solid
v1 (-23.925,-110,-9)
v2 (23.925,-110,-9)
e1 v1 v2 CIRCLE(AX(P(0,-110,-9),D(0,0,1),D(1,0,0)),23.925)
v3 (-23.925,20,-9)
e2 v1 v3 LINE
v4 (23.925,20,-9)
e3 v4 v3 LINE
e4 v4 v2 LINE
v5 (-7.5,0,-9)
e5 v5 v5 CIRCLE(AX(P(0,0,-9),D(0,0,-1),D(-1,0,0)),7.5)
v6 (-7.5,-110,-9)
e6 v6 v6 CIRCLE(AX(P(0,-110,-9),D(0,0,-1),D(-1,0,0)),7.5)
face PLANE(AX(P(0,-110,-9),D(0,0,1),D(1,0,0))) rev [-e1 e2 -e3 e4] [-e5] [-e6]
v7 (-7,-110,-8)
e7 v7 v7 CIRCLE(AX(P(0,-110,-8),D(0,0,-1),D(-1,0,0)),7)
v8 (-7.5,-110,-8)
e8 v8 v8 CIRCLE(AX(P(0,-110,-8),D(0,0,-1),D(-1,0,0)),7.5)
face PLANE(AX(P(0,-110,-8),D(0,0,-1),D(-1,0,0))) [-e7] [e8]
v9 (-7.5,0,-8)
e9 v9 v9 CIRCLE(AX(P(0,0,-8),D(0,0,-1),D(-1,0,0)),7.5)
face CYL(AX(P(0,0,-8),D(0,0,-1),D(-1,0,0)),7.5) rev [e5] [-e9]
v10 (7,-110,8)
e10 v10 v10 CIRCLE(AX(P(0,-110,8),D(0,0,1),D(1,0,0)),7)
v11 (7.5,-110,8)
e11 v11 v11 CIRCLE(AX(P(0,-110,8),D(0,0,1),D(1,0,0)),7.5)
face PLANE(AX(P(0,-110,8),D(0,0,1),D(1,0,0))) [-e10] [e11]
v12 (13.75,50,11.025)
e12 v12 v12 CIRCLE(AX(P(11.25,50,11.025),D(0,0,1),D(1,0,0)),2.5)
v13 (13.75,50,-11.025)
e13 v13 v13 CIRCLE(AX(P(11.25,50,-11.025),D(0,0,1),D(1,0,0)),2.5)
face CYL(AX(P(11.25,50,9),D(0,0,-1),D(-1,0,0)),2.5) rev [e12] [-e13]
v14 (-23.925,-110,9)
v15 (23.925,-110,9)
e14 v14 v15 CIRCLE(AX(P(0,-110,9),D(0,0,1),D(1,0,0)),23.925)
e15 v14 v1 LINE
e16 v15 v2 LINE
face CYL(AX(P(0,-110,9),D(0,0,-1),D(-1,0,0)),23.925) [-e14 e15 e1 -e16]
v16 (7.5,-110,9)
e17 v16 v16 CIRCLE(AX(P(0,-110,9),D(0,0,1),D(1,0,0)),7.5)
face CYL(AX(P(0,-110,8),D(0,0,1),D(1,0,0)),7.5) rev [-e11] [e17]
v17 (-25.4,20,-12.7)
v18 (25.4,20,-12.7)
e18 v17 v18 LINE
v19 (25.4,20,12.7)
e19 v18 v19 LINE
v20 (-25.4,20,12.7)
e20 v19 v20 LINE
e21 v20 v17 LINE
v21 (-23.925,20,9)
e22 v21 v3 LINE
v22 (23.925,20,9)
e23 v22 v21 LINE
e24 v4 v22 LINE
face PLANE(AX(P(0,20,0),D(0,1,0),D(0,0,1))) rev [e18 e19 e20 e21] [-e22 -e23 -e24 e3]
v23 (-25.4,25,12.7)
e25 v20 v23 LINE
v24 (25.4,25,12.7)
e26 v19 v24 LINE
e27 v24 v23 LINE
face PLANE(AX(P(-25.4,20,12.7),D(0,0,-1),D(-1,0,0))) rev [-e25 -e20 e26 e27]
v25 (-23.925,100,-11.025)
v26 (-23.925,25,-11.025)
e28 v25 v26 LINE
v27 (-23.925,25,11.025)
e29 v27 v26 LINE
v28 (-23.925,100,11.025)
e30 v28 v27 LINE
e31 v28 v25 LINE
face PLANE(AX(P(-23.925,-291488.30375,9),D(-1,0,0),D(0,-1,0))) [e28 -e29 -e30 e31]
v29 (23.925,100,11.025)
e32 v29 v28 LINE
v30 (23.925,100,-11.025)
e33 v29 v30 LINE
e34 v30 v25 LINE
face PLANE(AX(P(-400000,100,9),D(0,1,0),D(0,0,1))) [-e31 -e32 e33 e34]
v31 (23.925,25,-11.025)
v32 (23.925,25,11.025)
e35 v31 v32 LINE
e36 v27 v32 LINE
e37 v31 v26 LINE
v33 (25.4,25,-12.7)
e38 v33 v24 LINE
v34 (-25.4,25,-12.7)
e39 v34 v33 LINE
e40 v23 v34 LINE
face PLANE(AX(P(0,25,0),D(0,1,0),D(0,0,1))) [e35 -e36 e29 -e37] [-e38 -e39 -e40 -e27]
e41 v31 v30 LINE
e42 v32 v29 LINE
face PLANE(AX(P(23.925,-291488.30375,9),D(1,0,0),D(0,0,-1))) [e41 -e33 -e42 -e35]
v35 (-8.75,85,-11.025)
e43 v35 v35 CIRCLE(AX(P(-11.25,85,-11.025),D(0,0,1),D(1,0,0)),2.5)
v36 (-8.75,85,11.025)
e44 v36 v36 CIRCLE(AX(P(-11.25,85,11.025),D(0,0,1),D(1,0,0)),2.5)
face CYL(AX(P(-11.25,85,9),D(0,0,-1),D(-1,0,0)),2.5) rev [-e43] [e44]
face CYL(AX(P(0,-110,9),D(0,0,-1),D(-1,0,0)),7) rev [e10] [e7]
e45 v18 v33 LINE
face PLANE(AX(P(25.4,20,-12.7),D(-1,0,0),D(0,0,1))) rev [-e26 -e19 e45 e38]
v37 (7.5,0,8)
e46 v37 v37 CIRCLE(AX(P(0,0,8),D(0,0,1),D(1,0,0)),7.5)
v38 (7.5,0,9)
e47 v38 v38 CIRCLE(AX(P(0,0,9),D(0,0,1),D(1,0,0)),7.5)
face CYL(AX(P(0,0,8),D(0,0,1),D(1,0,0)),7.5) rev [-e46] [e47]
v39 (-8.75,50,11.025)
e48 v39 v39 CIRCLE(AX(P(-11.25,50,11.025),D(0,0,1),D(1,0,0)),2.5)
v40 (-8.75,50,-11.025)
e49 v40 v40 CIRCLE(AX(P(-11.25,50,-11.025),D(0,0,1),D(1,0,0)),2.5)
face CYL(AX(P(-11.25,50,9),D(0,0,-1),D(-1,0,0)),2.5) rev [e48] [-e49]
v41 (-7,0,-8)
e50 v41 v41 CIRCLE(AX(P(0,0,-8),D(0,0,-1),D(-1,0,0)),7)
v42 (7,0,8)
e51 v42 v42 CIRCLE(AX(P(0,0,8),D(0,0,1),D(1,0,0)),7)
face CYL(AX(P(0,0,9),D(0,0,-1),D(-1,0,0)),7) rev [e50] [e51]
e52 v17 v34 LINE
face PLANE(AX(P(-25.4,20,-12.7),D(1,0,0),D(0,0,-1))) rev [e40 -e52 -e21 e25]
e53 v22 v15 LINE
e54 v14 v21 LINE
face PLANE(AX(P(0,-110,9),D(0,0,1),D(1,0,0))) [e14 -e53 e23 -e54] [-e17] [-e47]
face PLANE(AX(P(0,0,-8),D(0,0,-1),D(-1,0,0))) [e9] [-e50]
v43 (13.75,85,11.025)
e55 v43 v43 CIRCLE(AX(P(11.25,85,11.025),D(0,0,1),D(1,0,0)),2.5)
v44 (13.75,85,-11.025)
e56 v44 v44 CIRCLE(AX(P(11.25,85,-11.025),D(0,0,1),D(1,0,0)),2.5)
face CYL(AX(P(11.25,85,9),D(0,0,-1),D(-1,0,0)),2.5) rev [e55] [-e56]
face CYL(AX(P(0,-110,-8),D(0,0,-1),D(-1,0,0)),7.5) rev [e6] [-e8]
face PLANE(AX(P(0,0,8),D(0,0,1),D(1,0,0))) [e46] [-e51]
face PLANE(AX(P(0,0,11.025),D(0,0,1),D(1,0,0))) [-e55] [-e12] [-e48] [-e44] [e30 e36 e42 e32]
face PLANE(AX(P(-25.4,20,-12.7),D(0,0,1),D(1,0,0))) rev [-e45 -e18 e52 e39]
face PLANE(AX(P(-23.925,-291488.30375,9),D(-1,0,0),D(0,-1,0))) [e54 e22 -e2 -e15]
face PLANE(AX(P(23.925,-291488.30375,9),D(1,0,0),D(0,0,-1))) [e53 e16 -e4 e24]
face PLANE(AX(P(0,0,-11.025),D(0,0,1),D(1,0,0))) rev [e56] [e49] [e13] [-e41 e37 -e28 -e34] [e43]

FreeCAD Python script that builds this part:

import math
import FreeCAD as App
import Part
import Sketcher

V = App.Vector
Q = App.Units.Quantity

doc = App.newDocument("Part")
body = doc.addObject("PartDesign::Body", "Body")

# Sketch on XY plane
sketch1 = body.newObject("Sketcher::SketchObject", "Sketch")
sketch1.AttachmentSupport = (doc.getObject("XY_Plane"), [""])
sketch1.MapMode = "FlatFace"
sketch1.addGeometry(Part.LineSegment(V(23.9, 100, 0), V(-23.9, 100, 0)), False)
sketch1.addGeometry(Part.LineSegment(V(-23.9, 100, 0), V(-23.9, -110, 0)), False)
sketch1.addGeometry(Part.ArcOfCircle(Part.Circle(V(0, -110, 0), V(0, 0, 1), 23.9), math.radians(180), math.radians(270)), False)
sketch1.addGeometry(Part.ArcOfCircle(Part.Circle(V(0, -110, 0), V(0, 0, 1), 23.9), math.radians(-90), math.radians(0)), False)
sketch1.addGeometry(Part.LineSegment(V(23.9, -110, 0), V(23.9, 100, 0)), False)
sketch1.addGeometry(Part.Circle(V(0, -110, 0), V(0, 0, 1), 7), False)
sketch1.addGeometry(Part.Circle(V(11.2, 50, 0), V(0, 0, 1), 2.5), False)
sketch1.addGeometry(Part.Circle(V(11.2, 85, 0), V(0, 0, 1), 2.5), False)
sketch1.addGeometry(Part.Circle(V(0, 0, 0), V(0, 0, 1), 7), False)
sketch1.addGeometry(Part.Circle(V(-11.2, 50, 0), V(0, 0, 1), 2.5), False)
sketch1.addGeometry(Part.Circle(V(-11.2, 85, 0), V(0, 0, 1), 2.5), False)
sketch1.addConstraint(Sketcher.Constraint("Coincident", 0, 2, 1, 1))
sketch1.addConstraint(Sketcher.Constraint("Tangent", 1, 2, 2, 1))
sketch1.addConstraint(Sketcher.Constraint("Tangent", 2, 2, 3, 1))
sketch1.addConstraint(Sketcher.Constraint("Tangent", 3, 2, 4, 1))
sketch1.addConstraint(Sketcher.Constraint("Coincident", 4, 2, 0, 1))
sketch1.addConstraint(Sketcher.Constraint("Horizontal", 0))
sketch1.addConstraint(Sketcher.Constraint("Vertical", 1))
sketch1.addConstraint(Sketcher.Constraint("Vertical", 4))
sketch1.addConstraint(Sketcher.Constraint("Coincident", 8, 3, -1, 1))
sketch1.addConstraint(Sketcher.Constraint("Coincident", 5, 3, 2, 3))
sketch1.addConstraint(Sketcher.Constraint("Equal", 2, 3))
sketch1.addConstraint(Sketcher.Constraint("Equal", 6, 7))
sketch1.addConstraint(Sketcher.Constraint("Equal", 5, 8))
sketch1.addConstraint(Sketcher.Constraint("Equal", 7, 9))
sketch1.addConstraint(Sketcher.Constraint("Equal", 9, 10))
sketch1.addConstraint(Sketcher.Constraint("Symmetric", 6, 3, 9, 3, -2))
sketch1.addConstraint(Sketcher.Constraint("Symmetric", 7, 3, 10, 3, -2))
sketch1.addConstraint(Sketcher.Constraint("PointOnObject", 2, 3, -2))
sketch1.addConstraint(Sketcher.Constraint("PointOnObject", 2, 2, -2))
sketch1.addConstraint(Sketcher.Constraint("Vertical", 6, 3, 7, 3))
sketch1.addConstraint(Sketcher.Constraint("Diameter", 5, Q("14 mm")))
sketch1.addConstraint(Sketcher.Constraint("Diameter", 6, Q("5 mm")))
sketch1.addConstraint(Sketcher.Constraint("DistanceY", 1, 2, 1, 1, Q("210 mm")))
sketch1.addConstraint(Sketcher.Constraint("DistanceY", 2, 3, -1, 1, Q("110 mm")))
sketch1.addConstraint(Sketcher.Constraint("DistanceY", -1, 1, 6, 3, Q("50 mm")))
sketch1.addConstraint(Sketcher.Constraint("DistanceY", -1, 1, 7, 3, Q("85 mm")))
sketch1.addConstraint(Sketcher.Constraint("Radius", 2, Q("23.925 mm")))
sketch1.addConstraint(Sketcher.Constraint("DistanceX", 9, 3, 6, 3, Q("22.5 mm")))
pad1 = body.newObject("PartDesign::Pad", "Pad")
pad1.Profile = sketch1
pad1.Length = 18
pad1.Midplane = True

# Sketch on XY plane
sketch2 = body.newObject("Sketcher::SketchObject", "Sketch001")
sketch2.AttachmentSupport = (doc.getObject("XY_Plane"), [""])
sketch2.MapMode = "FlatFace"
sketch2.addGeometry(Part.LineSegment(V(-23.9, 100, 0), V(-23.9, 35, 0)), False)
sketch2.addGeometry(Part.LineSegment(V(-23.9, 35, 0), V(23.9, 35, 0)), False)
sketch2.addGeometry(Part.LineSegment(V(23.9, 35, 0), V(23.9, 100, 0)), False)
sketch2.addGeometry(Part.LineSegment(V(23.9, 100, 0), V(-23.9, 100, 0)), False)
sketch2.addGeometry(Part.Circle(V(-11.2, 50, 0), V(0, 0, 1), 2.5), False)
sketch2.addGeometry(Part.Circle(V(11.2, 50, 0), V(0, 0, 1), 2.5), False)
sketch2.addGeometry(Part.Circle(V(-11.2, 85, 0), V(0, 0, 1), 2.5), False)
sketch2.addGeometry(Part.Circle(V(11.2, 85, 0), V(0, 0, 1), 2.5), False)
sketch2.addConstraint(Sketcher.Constraint("Coincident", 0, 2, 1, 1))
sketch2.addConstraint(Sketcher.Constraint("Coincident", 1, 2, 2, 1))
sketch2.addConstraint(Sketcher.Constraint("Coincident", 2, 2, 3, 1))
sketch2.addConstraint(Sketcher.Constraint("Coincident", 3, 2, 0, 1))
sketch2.addConstraint(Sketcher.Constraint("Vertical", 0))
sketch2.addConstraint(Sketcher.Constraint("Horizontal", 1))
sketch2.addConstraint(Sketcher.Constraint("Vertical", 2))
sketch2.addConstraint(Sketcher.Constraint("Horizontal", 3))
sketch2.addConstraint(Sketcher.Constraint("Equal", 4, 5))
sketch2.addConstraint(Sketcher.Constraint("Equal", 5, 6))
sketch2.addConstraint(Sketcher.Constraint("Equal", 6, 7))
sketch2.addConstraint(Sketcher.Constraint("Symmetric", 4, 3, 5, 3, -2))
sketch2.addConstraint(Sketcher.Constraint("Symmetric", 6, 3, 7, 3, -2))
sketch2.addConstraint(Sketcher.Constraint("Vertical", 4, 3, 6, 3))
sketch2.addConstraint(Sketcher.Constraint("Diameter", 4, Q("5 mm")))
sketch2.addConstraint(Sketcher.Constraint("DistanceY", 0, 2, 0, 1, Q("65 mm")))
sketch2.addConstraint(Sketcher.Constraint("DistanceY", -1, 1, 4, 3, Q("50 mm")))
sketch2.addConstraint(Sketcher.Constraint("DistanceY", -1, 1, 6, 3, Q("85 mm")))
sketch2.addConstraint(Sketcher.Constraint("DistanceY", -1, 1, 0, 2, Q("35 mm")))
sketch2.addConstraint(Sketcher.Constraint("DistanceX", 1, 1, 1, 2, Q("47.85 mm")))
sketch2.addConstraint(Sketcher.Constraint("DistanceX", 4, 3, 5, 3, Q("22.5 mm")))
sketch2.addConstraint(Sketcher.Constraint("DistanceX", 0, 2, -1, 1, Q("23.925 mm")))
pad2 = body.newObject("PartDesign::Pad", "Pad001")
pad2.Profile = sketch2
pad2.Length = 22.05
pad2.Midplane = True

# Sketch on XY plane
sketch3 = body.newObject("Sketcher::SketchObject", "Sketch002")
sketch3.AttachmentSupport = (doc.getObject("XY_Plane"), [""])
sketch3.MapMode = "FlatFace"
sketch3.AttachmentOffset = App.Placement(V(0, 0, 9), App.Rotation())
sketch3.addGeometry(Part.Circle(V(0, -110, 0), V(0, 0, 1), 8), False)
sketch3.addConstraint(Sketcher.Constraint("PointOnObject", 0, 3, -2))
sketch3.addConstraint(Sketcher.Constraint("Diameter", 0, Q("15 mm")))
sketch3.addConstraint(Sketcher.Constraint("DistanceY", 0, 3, -1, 1, Q("110 mm")))
pocket1 = body.newObject("PartDesign::Pocket", "Pocket")
pocket1.Profile = sketch3
pocket1.Length = 1

# Sketch on XY plane
sketch4 = body.newObject("Sketcher::SketchObject", "Sketch003")
sketch4.AttachmentSupport = (doc.getObject("XY_Plane"), [""])
sketch4.MapMode = "FlatFace"
sketch4.AttachmentOffset = App.Placement(V(0, 0, -8), App.Rotation())
sketch4.addGeometry(Part.Circle(V(0, -110, 0), V(0, 0, 1), 8), False)
sketch4.addConstraint(Sketcher.Constraint("PointOnObject", 0, 3, -2))
sketch4.addConstraint(Sketcher.Constraint("Diameter", 0, Q("15 mm")))
sketch4.addConstraint(Sketcher.Constraint("DistanceY", 0, 3, -1, 1, Q("110 mm")))
pocket2 = body.newObject("PartDesign::Pocket", "Pocket001")
pocket2.Profile = sketch4
pocket2.Length = 1

# Sketch on XY plane
sketch5 = body.newObject("Sketcher::SketchObject", "Sketch004")
sketch5.AttachmentSupport = (doc.getObject("XY_Plane"), [""])
sketch5.MapMode = "FlatFace"
sketch5.AttachmentOffset = App.Placement(V(0, 0, 9), App.Rotation())
sketch5.addGeometry(Part.Circle(V(0, 0, 0), V(0, 0, 1), 8), False)
sketch5.addConstraint(Sketcher.Constraint("Coincident", 0, 3, -1, 1))
sketch5.addConstraint(Sketcher.Constraint("Diameter", 0, Q("15 mm")))
pocket3 = body.newObject("PartDesign::Pocket", "Pocket002")
pocket3.Profile = sketch5
pocket3.Length = 1

# Sketch on XY plane
sketch6 = body.newObject("Sketcher::SketchObject", "Sketch005")
sketch6.AttachmentSupport = (doc.getObject("XY_Plane"), [""])
sketch6.MapMode = "FlatFace"
sketch6.AttachmentOffset = App.Placement(V(0, 0, -8), App.Rotation())
sketch6.addGeometry(Part.Circle(V(0, 0, 0), V(0, 0, 1), 8), False)
sketch6.addConstraint(Sketcher.Constraint("Coincident", 0, 3, -1, 1))
sketch6.addConstraint(Sketcher.Constraint("Diameter", 0, Q("15 mm")))
pocket4 = body.newObject("PartDesign::Pocket", "Pocket003")
pocket4.Profile = sketch6
pocket4.Length = 1

# Sketch on XZ plane
sketch7 = body.newObject("Sketcher::SketchObject", "Sketch006")
sketch7.AttachmentSupport = (doc.getObject("XZ_Plane"), [""])
sketch7.MapMode = "FlatFace"
sketch7.AttachmentOffset = App.Placement(V(0, 0, -25), App.Rotation())
sketch7.addGeometry(Part.LineSegment(V(-25, 13, 0), V(-25, -13, 0)), False)
sketch7.addGeometry(Part.LineSegment(V(-25, -13, 0), V(25, -13, 0)), False)
sketch7.addGeometry(Part.LineSegment(V(25, -13, 0), V(25, 13, 0)), False)
sketch7.addGeometry(Part.LineSegment(V(25, 13, 0), V(-25, 13, 0)), False)
sketch7.addConstraint(Sketcher.Constraint("Coincident", 0, 2, 1, 1))
sketch7.addConstraint(Sketcher.Constraint("Coincident", 1, 2, 2, 1))
sketch7.addConstraint(Sketcher.Constraint("Coincident", 2, 2, 3, 1))
sketch7.addConstraint(Sketcher.Constraint("Coincident", 3, 2, 0, 1))
sketch7.addConstraint(Sketcher.Constraint("Vertical", 0))
sketch7.addConstraint(Sketcher.Constraint("Horizontal", 1))
sketch7.addConstraint(Sketcher.Constraint("Vertical", 2))
sketch7.addConstraint(Sketcher.Constraint("Horizontal", 3))
sketch7.addConstraint(Sketcher.Constraint("Symmetric", 0, 2, 2, 2, -1, 1))
sketch7.addConstraint(Sketcher.Constraint("DistanceX", 1, 1, 1, 2, Q("50.8 mm")))
sketch7.addConstraint(Sketcher.Constraint("DistanceY", 0, 2, 0, 1, Q("25.4 mm")))
pad3 = body.newObject("PartDesign::Pad", "Pad002")
pad3.Profile = sketch7
pad3.Length = 5

# Sketch on XZ plane
sketch8 = body.newObject("Sketcher::SketchObject", "Sketch007")
sketch8.AttachmentSupport = (doc.getObject("XZ_Plane"), [""])
sketch8.MapMode = "FlatFace"
sketch8.AttachmentOffset = App.Placement(V(0, 0, -35), App.Rotation())
sketch8.addGeometry(Part.LineSegment(V(-24, 11, 0), V(-24, -11, 0)), False)
sketch8.addGeometry(Part.LineSegment(V(-24, -11, 0), V(24, -11, 0)), False)
sketch8.addGeometry(Part.LineSegment(V(24, -11, 0), V(24, 11, 0)), False)
sketch8.addGeometry(Part.LineSegment(V(24, 11, 0), V(-24, 11, 0)), False)
sketch8.addConstraint(Sketcher.Constraint("Coincident", 0, 2, 1, 1))
sketch8.addConstraint(Sketcher.Constraint("Coincident", 1, 2, 2, 1))
sketch8.addConstraint(Sketcher.Constraint("Coincident", 2, 2, 3, 1))
sketch8.addConstraint(Sketcher.Constraint("Coincident", 3, 2, 0, 1))
sketch8.addConstraint(Sketcher.Constraint("Vertical", 0))
sketch8.addConstraint(Sketcher.Constraint("Horizontal", 1))
sketch8.addConstraint(Sketcher.Constraint("Vertical", 2))
sketch8.addConstraint(Sketcher.Constraint("Horizontal", 3))
sketch8.addConstraint(Sketcher.Constraint("Symmetric", 0, 2, 2, 2, -1, 1))
sketch8.addConstraint(Sketcher.Constraint("DistanceX", 1, 1, 1, 2, Q("47.85 mm")))
sketch8.addConstraint(Sketcher.Constraint("DistanceY", 0, 2, 0, 1, Q("22.05 mm")))
pad4 = body.newObject("PartDesign::Pad", "Pad003")
pad4.Profile = sketch8
pad4.Length = 10

doc.recompute()
